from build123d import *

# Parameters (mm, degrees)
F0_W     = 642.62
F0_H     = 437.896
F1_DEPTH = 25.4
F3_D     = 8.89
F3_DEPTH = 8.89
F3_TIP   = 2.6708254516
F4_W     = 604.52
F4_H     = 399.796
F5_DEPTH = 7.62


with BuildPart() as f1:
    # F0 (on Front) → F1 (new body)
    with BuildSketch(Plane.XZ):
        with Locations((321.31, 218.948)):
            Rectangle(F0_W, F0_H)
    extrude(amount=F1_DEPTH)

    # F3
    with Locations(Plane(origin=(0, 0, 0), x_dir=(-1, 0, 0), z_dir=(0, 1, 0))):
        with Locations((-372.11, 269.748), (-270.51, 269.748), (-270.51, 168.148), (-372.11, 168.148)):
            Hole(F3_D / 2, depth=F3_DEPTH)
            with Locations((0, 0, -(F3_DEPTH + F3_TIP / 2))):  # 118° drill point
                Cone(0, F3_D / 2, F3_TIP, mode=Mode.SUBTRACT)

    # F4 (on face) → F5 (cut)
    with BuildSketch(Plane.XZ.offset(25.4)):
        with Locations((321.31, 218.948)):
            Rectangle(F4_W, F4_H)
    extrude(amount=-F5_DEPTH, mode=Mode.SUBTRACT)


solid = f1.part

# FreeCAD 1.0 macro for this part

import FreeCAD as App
import Part
import Sketcher
from FreeCAD import Vector
Q = App.Units.Quantity


def add_polygon(sketch, points):
    """Adds a closed chain of lines whose ends are joined by coincident constraints."""
    first, n = sketch.GeometryCount, len(points)
    for a, b in zip(points, points[1:] + points[:1]):
        sketch.addGeometry(Part.LineSegment(App.Vector(*a, 0), App.Vector(*b, 0)), False)
    for i in range(n):
        sketch.addConstraint(Sketcher.Constraint("Coincident", first + i, 2, first + (i + 1) % n, 1))

doc = App.newDocument("Part")
body = doc.addObject("PartDesign::Body", "Body")

# Sketch on XZ plane
sketch1 = doc.addObject("Sketcher::SketchObject", "Sketch")
body.addObject(sketch1)
sketch1.AttachmentSupport = (doc.XZ_Plane, [""])
sketch1.MapMode = "FlatFace"
add_polygon(sketch1, [(0, 438), (0, 0), (643, 0), (643, 438)])  # lines 0-3
sketch1.addConstraint([
    Sketcher.Constraint("Vertical", 0),
    Sketcher.Constraint("Horizontal", 1),
    Sketcher.Constraint("Vertical", 2),
    Sketcher.Constraint("Horizontal", 3),
    Sketcher.Constraint("Coincident", 0, 2, -1, 1),
    Sketcher.Constraint("DistanceX", 1, 1, 1, 2, Q("25.3 in")),
    Sketcher.Constraint("DistanceY", 0, 2, 0, 1, Q("17.24 in")),
])
pad1 = doc.addObject("PartDesign::Pad", "Pad")
body.addObject(pad1)
pad1.Profile = sketch1
pad1.Length = Q("1 in")

# Sketch on XZ plane
sketch2 = doc.addObject("Sketcher::SketchObject", "Sketch001")
body.addObject(sketch2)
sketch2.AttachmentSupport = (doc.XZ_Plane, [""])
sketch2.MapMode = "FlatFace"
sketch2.addGeometry([
    Part.Circle(Vector(372.1, 269.7, 0), Vector(0, 0, 1), 4.4),
    Part.Circle(Vector(270.5, 269.7, 0), Vector(0, 0, 1), 4.4),
    Part.Circle(Vector(270.5, 168.1, 0), Vector(0, 0, 1), 4.4),
    Part.Circle(Vector(372.1, 168.1, 0), Vector(0, 0, 1), 4.4),
], False)
sketch2.addConstraint([
    Sketcher.Constraint("Equal", 0, 1),
    Sketcher.Constraint("Equal", 1, 2),
    Sketcher.Constraint("Equal", 2, 3),
    Sketcher.Constraint("Horizontal", 0, 3, 1, 3),
    Sketcher.Constraint("Horizontal", 2, 3, 3, 3),
    Sketcher.Constraint("Vertical", 1, 3, 2, 3),
    Sketcher.Constraint("Vertical", 0, 3, 3, 3),
    Sketcher.Constraint("Diameter", 0, Q("0.35 in")),
    Sketcher.Constraint("DistanceX", 1, 3, 0, 3, Q("4 in")),
    Sketcher.Constraint("DistanceY", 2, 3, 1, 3, Q("4 in")),
    Sketcher.Constraint("DistanceX", -1, 1, 0, 3, Q("14.65 in")),
    Sketcher.Constraint("DistanceY", -1, 1, 0, 3, Q("10.62 in")),
])
doc.recompute()
hole = doc.addObject("PartDesign::Hole", "Hole")
body.addObject(hole)
hole.Profile = sketch2
hole.ThreadType = "None"
hole.Diameter = Q("0.35 in")
hole.DepthType = "Dimension"
hole.Depth = Q("0.35 in")
hole.DrillPoint = "Angled"
hole.DrillPointAngle = 118
hole.Reversed = True

# Sketch on XZ plane
sketch3 = doc.addObject("Sketcher::SketchObject", "Sketch002")
body.addObject(sketch3)
sketch3.AttachmentSupport = (doc.XZ_Plane, [""])
sketch3.MapMode = "FlatFace"
sketch3.AttachmentOffset = App.Placement(Vector(0, 0, 1 * 25.4), App.Rotation())
add_polygon(sketch3, [(19, 419), (19, 19), (624, 19), (624, 419)])  # lines 0-3
sketch3.addConstraint([
    Sketcher.Constraint("Vertical", 0),
    Sketcher.Constraint("Horizontal", 1),
    Sketcher.Constraint("Vertical", 2),
    Sketcher.Constraint("Horizontal", 3),
    Sketcher.Constraint("DistanceX", 1, 1, 1, 2, Q("23.8 in")),
    Sketcher.Constraint("DistanceY", 0, 2, 0, 1, Q("15.74 in")),
    Sketcher.Constraint("DistanceX", -1, 1, 0, 2, Q("0.75 in")),
    Sketcher.Constraint("DistanceY", -1, 1, 0, 2, Q("0.75 in")),
])
pocket1 = doc.addObject("PartDesign::Pocket", "Pocket")
body.addObject(pocket1)
pocket1.Profile = sketch3
pocket1.Length = Q("0.3 in")

doc.recompute()
